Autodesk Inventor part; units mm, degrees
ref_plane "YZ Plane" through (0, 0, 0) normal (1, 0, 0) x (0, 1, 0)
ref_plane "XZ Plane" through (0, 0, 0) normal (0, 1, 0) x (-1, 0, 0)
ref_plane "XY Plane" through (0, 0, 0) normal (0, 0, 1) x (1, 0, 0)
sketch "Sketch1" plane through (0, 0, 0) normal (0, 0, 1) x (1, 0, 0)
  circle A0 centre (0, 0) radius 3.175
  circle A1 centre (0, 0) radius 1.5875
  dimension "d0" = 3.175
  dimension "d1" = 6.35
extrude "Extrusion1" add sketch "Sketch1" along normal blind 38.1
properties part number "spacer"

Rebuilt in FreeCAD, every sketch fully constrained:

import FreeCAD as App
import Part
import Sketcher
Q = App.Units.Quantity

doc = App.newDocument("Part")
body = doc.addObject("PartDesign::Body", "Body")

# Sketch on XY plane
sketch1 = body.newObject("Sketcher::SketchObject", "Sketch")
sketch1.AttachmentSupport = (doc.getObject("XY_Plane"), [""])
sketch1.MapMode = "FlatFace"
sketch1.addGeometry([
    Part.Circle(App.Vector(0, 0, 0), App.Vector(0, 0, 1), 3.2),
    Part.Circle(App.Vector(0, 0, 0), App.Vector(0, 0, 1), 1.6),
], False)
sketch1.addConstraint([
    Sketcher.Constraint("Coincident", 0, 3, -1, 1),
    Sketcher.Constraint("Coincident", 1, 3, -1, 1),
    Sketcher.Constraint("Diameter", 0, Q("0.25 in")),
    Sketcher.Constraint("Diameter", 1, Q("0.125 in")),
])
pad1 = body.newObject("PartDesign::Pad", "Pad")
pad1.Profile = sketch1
pad1.Length = Q("1.5 in")

doc.recompute()
